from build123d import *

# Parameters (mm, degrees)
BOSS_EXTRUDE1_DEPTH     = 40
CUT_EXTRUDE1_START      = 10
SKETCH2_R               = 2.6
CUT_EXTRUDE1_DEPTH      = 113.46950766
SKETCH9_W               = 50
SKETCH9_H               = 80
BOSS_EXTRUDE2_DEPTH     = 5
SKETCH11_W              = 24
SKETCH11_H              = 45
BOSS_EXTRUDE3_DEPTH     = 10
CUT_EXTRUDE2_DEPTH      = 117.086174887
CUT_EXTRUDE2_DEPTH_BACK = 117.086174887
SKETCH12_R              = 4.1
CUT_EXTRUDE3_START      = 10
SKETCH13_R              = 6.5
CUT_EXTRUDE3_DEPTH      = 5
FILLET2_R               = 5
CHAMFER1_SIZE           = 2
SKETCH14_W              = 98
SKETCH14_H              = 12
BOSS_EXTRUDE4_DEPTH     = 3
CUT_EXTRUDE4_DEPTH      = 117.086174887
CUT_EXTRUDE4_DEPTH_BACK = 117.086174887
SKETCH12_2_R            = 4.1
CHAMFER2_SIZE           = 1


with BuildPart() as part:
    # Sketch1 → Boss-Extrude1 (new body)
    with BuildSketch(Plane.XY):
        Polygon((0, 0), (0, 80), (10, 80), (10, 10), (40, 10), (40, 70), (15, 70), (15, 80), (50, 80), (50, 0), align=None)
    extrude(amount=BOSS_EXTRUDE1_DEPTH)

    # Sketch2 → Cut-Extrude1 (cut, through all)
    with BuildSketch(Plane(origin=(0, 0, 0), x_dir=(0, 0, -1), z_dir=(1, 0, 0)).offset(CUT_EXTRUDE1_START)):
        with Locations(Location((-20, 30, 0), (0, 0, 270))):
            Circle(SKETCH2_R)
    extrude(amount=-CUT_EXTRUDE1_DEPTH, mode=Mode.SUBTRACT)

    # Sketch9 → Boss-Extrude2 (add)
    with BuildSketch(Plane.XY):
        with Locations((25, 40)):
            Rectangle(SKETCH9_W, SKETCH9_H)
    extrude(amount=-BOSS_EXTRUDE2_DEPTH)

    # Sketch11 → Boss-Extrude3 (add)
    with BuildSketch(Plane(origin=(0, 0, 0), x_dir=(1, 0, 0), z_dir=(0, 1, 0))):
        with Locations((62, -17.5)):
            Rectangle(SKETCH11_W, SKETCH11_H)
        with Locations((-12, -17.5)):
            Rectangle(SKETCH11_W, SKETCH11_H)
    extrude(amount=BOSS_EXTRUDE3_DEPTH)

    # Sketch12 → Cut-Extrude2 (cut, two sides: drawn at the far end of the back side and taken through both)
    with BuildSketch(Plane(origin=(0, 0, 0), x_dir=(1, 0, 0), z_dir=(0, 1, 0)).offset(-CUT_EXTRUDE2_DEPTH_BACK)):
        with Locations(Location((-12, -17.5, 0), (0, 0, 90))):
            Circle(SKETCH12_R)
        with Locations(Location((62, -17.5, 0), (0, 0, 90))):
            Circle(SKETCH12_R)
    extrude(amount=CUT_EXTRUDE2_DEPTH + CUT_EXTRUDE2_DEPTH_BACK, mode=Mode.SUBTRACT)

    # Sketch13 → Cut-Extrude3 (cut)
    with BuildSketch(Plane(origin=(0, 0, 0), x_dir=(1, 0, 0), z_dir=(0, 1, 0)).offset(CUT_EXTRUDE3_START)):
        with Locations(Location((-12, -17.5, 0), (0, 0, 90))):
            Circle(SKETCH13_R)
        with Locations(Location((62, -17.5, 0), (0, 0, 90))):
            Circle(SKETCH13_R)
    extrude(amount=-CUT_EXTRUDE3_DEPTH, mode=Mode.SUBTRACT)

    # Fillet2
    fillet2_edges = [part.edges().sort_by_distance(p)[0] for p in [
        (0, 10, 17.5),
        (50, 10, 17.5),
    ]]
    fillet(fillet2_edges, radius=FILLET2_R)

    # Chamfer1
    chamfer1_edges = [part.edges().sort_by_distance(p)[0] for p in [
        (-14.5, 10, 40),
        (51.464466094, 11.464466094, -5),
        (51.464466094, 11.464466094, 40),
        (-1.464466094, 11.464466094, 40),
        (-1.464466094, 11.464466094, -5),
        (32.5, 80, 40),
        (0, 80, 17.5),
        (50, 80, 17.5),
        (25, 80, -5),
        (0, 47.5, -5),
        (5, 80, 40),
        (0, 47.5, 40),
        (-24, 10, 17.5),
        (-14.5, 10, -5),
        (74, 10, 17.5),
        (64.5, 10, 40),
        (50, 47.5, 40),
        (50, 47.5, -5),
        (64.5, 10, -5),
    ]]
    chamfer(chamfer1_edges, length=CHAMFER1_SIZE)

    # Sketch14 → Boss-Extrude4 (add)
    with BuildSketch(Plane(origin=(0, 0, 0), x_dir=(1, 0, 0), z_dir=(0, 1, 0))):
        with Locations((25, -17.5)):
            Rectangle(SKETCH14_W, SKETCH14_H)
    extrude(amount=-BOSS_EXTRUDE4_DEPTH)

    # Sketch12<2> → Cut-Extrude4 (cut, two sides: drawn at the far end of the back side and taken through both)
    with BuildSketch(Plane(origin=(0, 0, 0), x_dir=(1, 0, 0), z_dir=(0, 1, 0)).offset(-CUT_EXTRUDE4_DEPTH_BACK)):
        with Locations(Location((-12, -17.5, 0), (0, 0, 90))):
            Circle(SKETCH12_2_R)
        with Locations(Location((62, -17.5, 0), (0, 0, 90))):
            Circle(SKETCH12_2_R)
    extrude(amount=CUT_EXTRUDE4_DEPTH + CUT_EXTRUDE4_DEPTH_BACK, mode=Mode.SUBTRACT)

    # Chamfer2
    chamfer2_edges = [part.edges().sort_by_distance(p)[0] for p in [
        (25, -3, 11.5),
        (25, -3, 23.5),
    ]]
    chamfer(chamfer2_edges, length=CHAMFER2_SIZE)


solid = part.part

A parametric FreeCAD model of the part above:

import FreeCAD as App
import Part
import Sketcher
Q = App.Units.Quantity


def edges_at(feature, points):
    """Names of the edges that pass closest to the given points."""
    edges = feature.Shape.Edges
    near = lambda p: min(range(len(edges)), key=lambda i: edges[i].distToShape(Part.Vertex(*p))[0])
    return sorted({f"Edge{near(p) + 1}" for p in points})


def add_polygon(sketch, points):
    """Adds a closed chain of lines whose ends are joined by coincident constraints."""
    first, n = sketch.GeometryCount, len(points)
    for a, b in zip(points, points[1:] + points[:1]):
        sketch.addGeometry(Part.LineSegment(App.Vector(*a, 0), App.Vector(*b, 0)), False)
    for i in range(n):
        sketch.addConstraint(Sketcher.Constraint("Coincident", first + i, 2, first + (i + 1) % n, 1))

doc = App.newDocument("Part")
body = doc.addObject("PartDesign::Body", "Body")

# Sketch on XY plane
sketch1 = body.newObject("Sketcher::SketchObject", "Sketch")
sketch1.AttachmentSupport = (doc.getObject("XY_Plane"), [""])
sketch1.MapMode = "FlatFace"
add_polygon(sketch1, [(0, 80), (0, 0), (50, 0), (50, 80), (15, 80), (15, 70), (40, 70), (40, 10), (10, 10), (10, 80)])  # lines 0-9
sketch1.addConstraint([
    Sketcher.Constraint("Vertical", 0),
    Sketcher.Constraint("Horizontal", 1),
    Sketcher.Constraint("Vertical", 2),
    Sketcher.Constraint("Horizontal", 3),
    Sketcher.Constraint("Vertical", 4),
    Sketcher.Constraint("Horizontal", 5),
    Sketcher.Constraint("Vertical", 6),
    Sketcher.Constraint("Horizontal", 7),
    Sketcher.Constraint("Vertical", 8),
    Sketcher.Constraint("Horizontal", 9),
    Sketcher.Constraint("Coincident", 0, 2, -1, 1),
    Sketcher.Constraint("Horizontal", 3, 2, 8, 2),
    Sketcher.Constraint("Equal", 9, 4),
    Sketcher.Constraint("DistanceX", 1, 1, 1, 2, Q("50 mm")),
    Sketcher.Constraint("DistanceX", 3, 2, 3, 1, Q("35 mm")),
    Sketcher.Constraint("DistanceX", 5, 1, 5, 2, Q("25 mm")),
    Sketcher.Constraint("DistanceX", 7, 2, 7, 1, Q("30 mm")),
    Sketcher.Constraint("DistanceY", 0, 2, 0, 1, Q("80 mm")),
    Sketcher.Constraint("DistanceY", 6, 2, 6, 1, Q("60 mm")),
])
pad1 = body.newObject("PartDesign::Pad", "Pad")
pad1.Profile = sketch1
pad1.Length = 40

# Sketch on YZ plane
sketch2 = body.newObject("Sketcher::SketchObject", "Sketch001")
sketch2.AttachmentSupport = (doc.getObject("YZ_Plane"), [""])
sketch2.MapMode = "FlatFace"
sketch2.AttachmentOffset = App.Placement(App.Vector(0, 0, 10), App.Rotation())
sketch2.addGeometry(Part.Circle(App.Vector(30, 20, 0), App.Vector(0, 0, 1), 2.6), False)
sketch2.addConstraint([
    Sketcher.Constraint("Diameter", 0, Q("5.2 mm")),
    Sketcher.Constraint("DistanceX", -1, 1, 0, 3, Q("30 mm")),
    Sketcher.Constraint("DistanceY", -1, 1, 0, 3, Q("20 mm")),
])
pocket1 = body.newObject("PartDesign::Pocket", "Pocket")
pocket1.Profile = sketch2
pocket1.Type = "ThroughAll"

# Sketch on XY plane
sketch3 = body.newObject("Sketcher::SketchObject", "Sketch002")
sketch3.AttachmentSupport = (doc.getObject("XY_Plane"), [""])
sketch3.MapMode = "FlatFace"
add_polygon(sketch3, [(0, 80), (0, 0), (50, 0), (50, 80)])  # lines 0-3
sketch3.addConstraint([
    Sketcher.Constraint("Vertical", 0),
    Sketcher.Constraint("Horizontal", 1),
    Sketcher.Constraint("Vertical", 2),
    Sketcher.Constraint("Horizontal", 3),
    Sketcher.Constraint("Coincident", 0, 2, -1, 1),
    Sketcher.Constraint("DistanceX", 1, 1, 1, 2, Q("50 mm")),
    Sketcher.Constraint("DistanceY", 0, 2, 0, 1, Q("80 mm")),
])
pad2 = body.newObject("PartDesign::Pad", "Pad001")
pad2.Profile = sketch3
pad2.Length = 5
pad2.Reversed = True

# Sketch on XZ plane
sketch4 = body.newObject("Sketcher::SketchObject", "Sketch003")
sketch4.AttachmentSupport = (doc.getObject("XZ_Plane"), [""])
sketch4.MapMode = "FlatFace"
add_polygon(sketch4, [(50, -5), (50, 40), (74, 40), (74, -5)])  # lines 0-3
add_polygon(sketch4, [(-24, -5), (-24, 40), (0, 40), (0, -5)])  # lines 4-7
sketch4.addConstraint([
    Sketcher.Constraint("Vertical", 0),
    Sketcher.Constraint("Horizontal", 1),
    Sketcher.Constraint("Vertical", 2),
    Sketcher.Constraint("Horizontal", 3),
    Sketcher.Constraint("Vertical", 4),
    Sketcher.Constraint("Horizontal", 5),
    Sketcher.Constraint("Vertical", 6),
    Sketcher.Constraint("Horizontal", 7),
    Sketcher.Constraint("PointOnObject", 5, 2, -2),
    Sketcher.Constraint("Horizontal", 1, 2, 4, 2),
    Sketcher.Constraint("Horizontal", 3, 2, 6, 2),
    Sketcher.Constraint("Equal", 3, 5),
    Sketcher.Constraint("DistanceX", 1, 1, 1, 2, Q("24 mm")),
    Sketcher.Constraint("DistanceY", 0, 1, 0, 2, Q("45 mm")),
    Sketcher.Constraint("DistanceX", -1, 1, 0, 2, Q("50 mm")),
    Sketcher.Constraint("DistanceY", -1, 1, 0, 2, Q("40 mm")),
])
pad3 = body.newObject("PartDesign::Pad", "Pad002")
pad3.Profile = sketch4
pad3.Length = 10
pad3.Reversed = True

# Sketch on XZ plane
sketch5 = body.newObject("Sketcher::SketchObject", "Sketch004")
sketch5.AttachmentSupport = (doc.getObject("XZ_Plane"), [""])
sketch5.MapMode = "FlatFace"
sketch5.addGeometry([
    Part.Circle(App.Vector(-12, 17.5, 0), App.Vector(0, 0, 1), 4.1),
    Part.Circle(App.Vector(62, 17.5, 0), App.Vector(0, 0, 1), 4.1),
], False)
sketch5.addConstraint([
    Sketcher.Constraint("Equal", 0, 1),
    Sketcher.Constraint("Horizontal", 0, 3, 1, 3),
    Sketcher.Constraint("Diameter", 0, Q("8.2 mm")),
    Sketcher.Constraint("DistanceX", 0, 3, -1, 1, Q("12 mm")),
    Sketcher.Constraint("DistanceX", -1, 1, 1, 3, Q("62 mm")),
    Sketcher.Constraint("DistanceY", -1, 1, 0, 3, Q("17.5 mm")),
])
pocket2 = body.newObject("PartDesign::Pocket", "Pocket001")
pocket2.Profile = sketch5
pocket2.Type = "ThroughAll"
pocket2.Midplane = True

# Sketch on XZ plane
sketch6 = body.newObject("Sketcher::SketchObject", "Sketch005")
sketch6.AttachmentSupport = (doc.getObject("XZ_Plane"), [""])
sketch6.MapMode = "FlatFace"
sketch6.AttachmentOffset = App.Placement(App.Vector(0, 0, -10), App.Rotation())
sketch6.addGeometry([
    Part.Circle(App.Vector(-12, 18, 0), App.Vector(0, 0, 1), 6),
    Part.Circle(App.Vector(62, 18, 0), App.Vector(0, 0, 1), 6),
], False)
sketch6.addConstraint([
    Sketcher.Constraint("Equal", 0, 1),
    Sketcher.Constraint("Horizontal", 0, 3, 1, 3),
    Sketcher.Constraint("Diameter", 0, Q("13 mm")),
    Sketcher.Constraint("DistanceX", 0, 3, -1, 1, Q("12 mm")),
    Sketcher.Constraint("DistanceX", -1, 1, 1, 3, Q("62 mm")),
    Sketcher.Constraint("DistanceY", -1, 1, 0, 3, Q("17.5 mm")),
])
pocket3 = body.newObject("PartDesign::Pocket", "Pocket002")
pocket3.Profile = sketch6
pocket3.Length = 5
pocket3.Reversed = True
doc.recompute()

fillet = body.newObject("PartDesign::Fillet", "Fillet")
fillet.Base = (pocket3, edges_at(pocket3, [(0, 10, 17.5), (50, 10, 17.5)]))
fillet.Radius = 5
doc.recompute()

chamfer = body.newObject("PartDesign::Chamfer", "Chamfer")
chamfer.Base = (fillet, edges_at(fillet, [
    (-14.5, 10, 40),
    (51.464, 11.464, -5),
    (51.464, 11.464, 40),
    (-1.464, 11.464, 40),
    (-1.464, 11.464, -5),
    (32.5, 80, 40),
    (0, 80, 17.5),
    (50, 80, 17.5),
    (25, 80, -5),
    (0, 47.5, -5),
    (5, 80, 40),
    (0, 47.5, 40),
    (-24, 10, 17.5),
    (-14.5, 10, -5),
    (74, 10, 17.5),
    (64.5, 10, 40),
    (50, 47.5, 40),
    (50, 47.5, -5),
    (64.5, 10, -5),
]))
chamfer.Size = 2

# Sketch on XZ plane
sketch7 = body.newObject("Sketcher::SketchObject", "Sketch006")
sketch7.AttachmentSupport = (doc.getObject("XZ_Plane"), [""])
sketch7.MapMode = "FlatFace"
add_polygon(sketch7, [(-24, 12), (-24, 24), (74, 24), (74, 12)])  # lines 0-3
sketch7.addConstraint([
    Sketcher.Constraint("Vertical", 0),
    Sketcher.Constraint("Horizontal", 1),
    Sketcher.Constraint("Vertical", 2),
    Sketcher.Constraint("Horizontal", 3),
    Sketcher.Constraint("DistanceX", 1, 1, 1, 2, Q("98 mm")),
    Sketcher.Constraint("DistanceY", 0, 1, 0, 2, Q("12 mm")),
    Sketcher.Constraint("DistanceX", 0, 2, -1, 1, Q("24 mm")),
    Sketcher.Constraint("DistanceY", -1, 1, 0, 2, Q("23.5 mm")),
])
pad4 = body.newObject("PartDesign::Pad", "Pad003")
pad4.Profile = sketch7
pad4.Length = 3

# Sketch on XZ plane
sketch8 = body.newObject("Sketcher::SketchObject", "Sketch007")
sketch8.AttachmentSupport = (doc.getObject("XZ_Plane"), [""])
sketch8.MapMode = "FlatFace"
sketch8.addGeometry([
    Part.Circle(App.Vector(-12, 17.5, 0), App.Vector(0, 0, 1), 4.1),
    Part.Circle(App.Vector(62, 17.5, 0), App.Vector(0, 0, 1), 4.1),
], False)
sketch8.addConstraint([
    Sketcher.Constraint("Equal", 0, 1),
    Sketcher.Constraint("Horizontal", 0, 3, 1, 3),
    Sketcher.Constraint("Diameter", 0, Q("8.2 mm")),
    Sketcher.Constraint("DistanceX", 0, 3, -1, 1, Q("12 mm")),
    Sketcher.Constraint("DistanceX", -1, 1, 1, 3, Q("62 mm")),
    Sketcher.Constraint("DistanceY", -1, 1, 0, 3, Q("17.5 mm")),
])
pocket4 = body.newObject("PartDesign::Pocket", "Pocket003")
pocket4.Profile = sketch8
pocket4.Type = "ThroughAll"
pocket4.Midplane = True
doc.recompute()

chamfer2 = body.newObject("PartDesign::Chamfer", "Chamfer001")
chamfer2.Base = (pocket4, edges_at(pocket4, [(25, -3, 11.5), (25, -3, 23.5)]))
chamfer2.Size = 1

doc.recompute()
